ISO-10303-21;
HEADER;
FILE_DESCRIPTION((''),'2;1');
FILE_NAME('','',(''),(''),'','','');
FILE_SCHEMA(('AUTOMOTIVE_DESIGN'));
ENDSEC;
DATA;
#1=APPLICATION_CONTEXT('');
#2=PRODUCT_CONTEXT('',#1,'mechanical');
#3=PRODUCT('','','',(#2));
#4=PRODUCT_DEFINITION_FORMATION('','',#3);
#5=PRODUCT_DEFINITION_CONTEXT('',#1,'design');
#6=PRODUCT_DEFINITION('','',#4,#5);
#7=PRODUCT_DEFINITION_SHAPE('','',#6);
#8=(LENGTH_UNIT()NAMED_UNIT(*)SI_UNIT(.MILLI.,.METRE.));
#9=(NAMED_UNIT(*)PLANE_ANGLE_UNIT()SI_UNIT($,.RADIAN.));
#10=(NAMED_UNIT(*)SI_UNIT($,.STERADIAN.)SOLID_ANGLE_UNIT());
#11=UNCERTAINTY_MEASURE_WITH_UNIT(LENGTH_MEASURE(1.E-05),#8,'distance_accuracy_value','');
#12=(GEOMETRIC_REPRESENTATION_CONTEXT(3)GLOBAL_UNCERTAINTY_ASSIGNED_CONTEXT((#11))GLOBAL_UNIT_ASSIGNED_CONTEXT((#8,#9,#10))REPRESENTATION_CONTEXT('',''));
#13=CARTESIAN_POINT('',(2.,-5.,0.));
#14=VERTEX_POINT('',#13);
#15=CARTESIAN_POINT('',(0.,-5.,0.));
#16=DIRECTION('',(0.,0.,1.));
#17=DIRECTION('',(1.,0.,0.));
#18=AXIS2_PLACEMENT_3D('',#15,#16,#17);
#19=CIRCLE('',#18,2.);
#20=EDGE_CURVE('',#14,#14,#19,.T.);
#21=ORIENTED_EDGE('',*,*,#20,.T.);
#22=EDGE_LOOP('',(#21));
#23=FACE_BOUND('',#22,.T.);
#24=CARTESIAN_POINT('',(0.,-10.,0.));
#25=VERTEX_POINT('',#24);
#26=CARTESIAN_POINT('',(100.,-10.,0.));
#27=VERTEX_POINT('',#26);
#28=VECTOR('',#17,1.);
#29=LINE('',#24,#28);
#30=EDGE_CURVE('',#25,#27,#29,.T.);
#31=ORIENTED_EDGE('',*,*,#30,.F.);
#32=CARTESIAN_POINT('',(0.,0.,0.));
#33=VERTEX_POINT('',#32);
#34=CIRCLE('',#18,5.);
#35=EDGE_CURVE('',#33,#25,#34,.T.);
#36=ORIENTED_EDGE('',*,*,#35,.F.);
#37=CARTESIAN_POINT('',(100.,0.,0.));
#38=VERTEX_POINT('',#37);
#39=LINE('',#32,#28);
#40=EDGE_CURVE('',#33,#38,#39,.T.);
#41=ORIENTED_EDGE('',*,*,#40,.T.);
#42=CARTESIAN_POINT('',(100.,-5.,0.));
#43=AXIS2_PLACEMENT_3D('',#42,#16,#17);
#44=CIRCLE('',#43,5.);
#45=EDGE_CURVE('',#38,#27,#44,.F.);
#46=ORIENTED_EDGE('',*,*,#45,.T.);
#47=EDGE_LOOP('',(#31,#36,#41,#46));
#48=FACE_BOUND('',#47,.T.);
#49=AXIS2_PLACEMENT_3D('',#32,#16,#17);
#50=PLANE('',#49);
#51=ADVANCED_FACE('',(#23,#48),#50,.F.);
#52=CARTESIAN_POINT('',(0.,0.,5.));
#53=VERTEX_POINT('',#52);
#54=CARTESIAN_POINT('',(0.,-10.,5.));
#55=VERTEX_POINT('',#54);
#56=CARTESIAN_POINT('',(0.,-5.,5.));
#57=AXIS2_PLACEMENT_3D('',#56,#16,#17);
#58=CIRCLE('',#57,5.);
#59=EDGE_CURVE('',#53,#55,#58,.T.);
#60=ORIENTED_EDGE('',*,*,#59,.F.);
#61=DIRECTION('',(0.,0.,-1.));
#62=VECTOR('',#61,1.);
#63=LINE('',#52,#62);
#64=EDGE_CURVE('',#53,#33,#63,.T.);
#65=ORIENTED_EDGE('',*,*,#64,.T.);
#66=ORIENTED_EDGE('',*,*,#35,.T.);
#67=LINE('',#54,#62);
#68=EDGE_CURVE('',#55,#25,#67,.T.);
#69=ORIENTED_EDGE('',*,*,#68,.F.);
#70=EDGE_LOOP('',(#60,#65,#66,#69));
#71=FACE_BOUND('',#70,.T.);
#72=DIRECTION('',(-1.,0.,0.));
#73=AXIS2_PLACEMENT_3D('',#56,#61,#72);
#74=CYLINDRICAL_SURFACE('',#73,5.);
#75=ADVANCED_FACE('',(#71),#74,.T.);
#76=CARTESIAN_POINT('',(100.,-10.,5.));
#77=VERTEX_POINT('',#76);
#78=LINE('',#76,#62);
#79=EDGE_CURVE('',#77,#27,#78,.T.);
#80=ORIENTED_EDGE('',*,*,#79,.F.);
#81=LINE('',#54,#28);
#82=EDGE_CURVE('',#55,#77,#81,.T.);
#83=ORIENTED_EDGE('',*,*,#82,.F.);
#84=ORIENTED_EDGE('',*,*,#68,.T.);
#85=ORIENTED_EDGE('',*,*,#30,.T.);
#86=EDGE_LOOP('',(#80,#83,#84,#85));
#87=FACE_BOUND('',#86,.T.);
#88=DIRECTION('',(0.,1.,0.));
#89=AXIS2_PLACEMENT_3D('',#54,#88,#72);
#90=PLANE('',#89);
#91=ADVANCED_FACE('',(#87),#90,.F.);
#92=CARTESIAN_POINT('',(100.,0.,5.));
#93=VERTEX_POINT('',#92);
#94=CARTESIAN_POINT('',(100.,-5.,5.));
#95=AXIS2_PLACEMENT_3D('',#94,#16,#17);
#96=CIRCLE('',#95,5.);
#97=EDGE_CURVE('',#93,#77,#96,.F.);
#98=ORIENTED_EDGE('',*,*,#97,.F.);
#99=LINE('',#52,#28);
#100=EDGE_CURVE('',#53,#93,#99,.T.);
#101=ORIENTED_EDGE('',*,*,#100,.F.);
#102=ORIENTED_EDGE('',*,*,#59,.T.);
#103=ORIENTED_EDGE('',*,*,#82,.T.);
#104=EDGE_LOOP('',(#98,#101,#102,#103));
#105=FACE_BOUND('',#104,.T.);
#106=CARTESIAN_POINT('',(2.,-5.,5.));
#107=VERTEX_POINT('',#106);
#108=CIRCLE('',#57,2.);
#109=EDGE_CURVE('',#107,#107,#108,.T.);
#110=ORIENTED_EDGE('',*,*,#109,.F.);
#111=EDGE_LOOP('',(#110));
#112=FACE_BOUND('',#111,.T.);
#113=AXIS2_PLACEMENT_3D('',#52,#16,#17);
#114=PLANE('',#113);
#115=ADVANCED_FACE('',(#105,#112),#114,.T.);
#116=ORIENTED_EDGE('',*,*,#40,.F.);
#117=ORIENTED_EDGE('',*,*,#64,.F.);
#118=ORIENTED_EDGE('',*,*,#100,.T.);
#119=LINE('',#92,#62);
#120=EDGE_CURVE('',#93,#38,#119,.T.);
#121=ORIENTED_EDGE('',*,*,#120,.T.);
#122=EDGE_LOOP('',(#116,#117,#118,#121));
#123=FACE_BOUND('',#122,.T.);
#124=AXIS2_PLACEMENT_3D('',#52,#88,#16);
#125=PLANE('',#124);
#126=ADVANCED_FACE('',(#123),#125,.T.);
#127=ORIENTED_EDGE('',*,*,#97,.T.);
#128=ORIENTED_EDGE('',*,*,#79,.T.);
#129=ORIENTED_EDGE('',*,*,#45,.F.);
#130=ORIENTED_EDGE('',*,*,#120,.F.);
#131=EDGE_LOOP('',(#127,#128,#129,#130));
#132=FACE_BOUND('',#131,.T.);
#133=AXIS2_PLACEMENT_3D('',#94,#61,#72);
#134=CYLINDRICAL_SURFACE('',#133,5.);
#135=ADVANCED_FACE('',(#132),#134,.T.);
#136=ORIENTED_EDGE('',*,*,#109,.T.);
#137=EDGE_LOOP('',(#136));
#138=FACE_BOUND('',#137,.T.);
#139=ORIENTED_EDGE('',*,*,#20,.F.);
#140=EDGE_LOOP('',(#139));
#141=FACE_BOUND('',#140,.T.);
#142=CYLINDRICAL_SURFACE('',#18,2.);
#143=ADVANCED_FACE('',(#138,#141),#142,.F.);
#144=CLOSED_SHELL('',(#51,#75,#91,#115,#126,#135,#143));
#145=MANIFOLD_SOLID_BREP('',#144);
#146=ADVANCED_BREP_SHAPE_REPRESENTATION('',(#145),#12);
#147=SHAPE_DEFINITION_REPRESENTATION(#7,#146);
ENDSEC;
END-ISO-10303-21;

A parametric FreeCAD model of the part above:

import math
import FreeCAD as App
import Part
import Sketcher
from FreeCAD import Vector

doc = App.newDocument("Part")
body = doc.addObject("PartDesign::Body", "Body")

# Sketch on XY plane
sketch1 = body.newObject("Sketcher::SketchObject", "Sketch")
sketch1.AttachmentSupport = (doc.getObject("XY_Plane"), [""])
sketch1.MapMode = "FlatFace"
sketch1.addGeometry([
    Part.ArcOfCircle(Part.Circle(Vector(0, -5, 0), Vector(0, 0, 1), 5), math.radians(90), math.radians(270)),
    Part.LineSegment(Vector(0, -10, 0), Vector(100, -10, 0)),
    Part.ArcOfCircle(Part.Circle(Vector(100, -5, 0), Vector(0, 0, 1), 5), math.radians(-90), math.radians(90)),
    Part.LineSegment(Vector(100, 0, 0), Vector(0, 0, 0)),
], False)
sketch1.addConstraint([
    Sketcher.Constraint("Tangent", 0, 2, 1, 1),
    Sketcher.Constraint("Tangent", 1, 2, 2, 1),
    Sketcher.Constraint("Tangent", 2, 2, 3, 1),
    Sketcher.Constraint("Tangent", 3, 2, 0, 1),
    Sketcher.Constraint("Horizontal", 1),
    Sketcher.Constraint("Horizontal", 3),
    Sketcher.Constraint("Coincident", 3, 2, -1, 1),
    Sketcher.Constraint("Radius", 0, 5.0),
    Sketcher.Constraint("DistanceX", 1, 1, 1, 2, 100.0),
])
pad1 = body.newObject("PartDesign::Pad", "Pad")
pad1.Profile = sketch1
pad1.Length = 5

# Sketch on XY plane
sketch2 = body.newObject("Sketcher::SketchObject", "Sketch001")
sketch2.AttachmentSupport = (doc.getObject("XY_Plane"), [""])
sketch2.MapMode = "FlatFace"
sketch2.AttachmentOffset = App.Placement(Vector(0, 0, 5), App.Rotation())
sketch2.addGeometry(Part.Circle(Vector(0, -5, 0), Vector(0, 0, 1), 2), False)
sketch2.addConstraint([
    Sketcher.Constraint("PointOnObject", 0, 3, -2),
    Sketcher.Constraint("Diameter", 0, 4.0),
    Sketcher.Constraint("DistanceY", 0, 3, -1, 1, 5.0),
])
pocket1 = body.newObject("PartDesign::Pocket", "Pocket")
pocket1.Profile = sketch2
pocket1.Type = "ThroughAll"

doc.recompute()
